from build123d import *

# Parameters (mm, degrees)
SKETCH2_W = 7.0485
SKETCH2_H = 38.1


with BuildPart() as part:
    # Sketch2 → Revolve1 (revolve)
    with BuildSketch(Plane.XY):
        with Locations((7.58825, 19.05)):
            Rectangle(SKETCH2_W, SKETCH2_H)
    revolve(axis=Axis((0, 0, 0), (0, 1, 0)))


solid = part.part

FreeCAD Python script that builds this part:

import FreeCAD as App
import Part
import Sketcher
Q = App.Units.Quantity


def add_polygon(sketch, points):
    """Adds a closed chain of lines whose ends are joined by coincident constraints."""
    first, n = sketch.GeometryCount, len(points)
    for a, b in zip(points, points[1:] + points[:1]):
        sketch.addGeometry(Part.LineSegment(App.Vector(*a, 0), App.Vector(*b, 0)), False)
    for i in range(n):
        sketch.addConstraint(Sketcher.Constraint("Coincident", first + i, 2, first + (i + 1) % n, 1))

doc = App.newDocument("Part")
params = doc.addObject("Spreadsheet::Sheet", "Params")
for row, (alias, value) in enumerate([
    ("sketch1_height", "1.5 in"),
    ("revolution_angle", "360 deg"),
], start=1):
    params.set(f"A{row}", alias)
    params.set(f"B{row}", "=" + value)
    params.setAlias(f"B{row}", alias)

body = doc.addObject("PartDesign::Body", "Body")

# Sketch on XY plane
sketch1 = doc.addObject("Sketcher::SketchObject", "Sketch")
body.addObject(sketch1)
sketch1.AttachmentSupport = (doc.XY_Plane, [""])
sketch1.MapMode = "FlatFace"
add_polygon(sketch1, [(4, 38), (4, 0), (11, 0), (11, 38)])  # lines 0-3
sketch1.addConstraint([
    Sketcher.Constraint("Vertical", 0),
    Sketcher.Constraint("Horizontal", 1),
    Sketcher.Constraint("Vertical", 2),
    Sketcher.Constraint("Horizontal", 3),
    Sketcher.Constraint("PointOnObject", 0, 2, -1),
    Sketcher.Constraint("DistanceY", 0, 2, 0, 1, Q("1.5 in")),
    Sketcher.Constraint("DistanceX", -1, 1, 0, 2, Q("0.16 in")),
    Sketcher.Constraint("DistanceX", 1, 1, 1, 2, Q("0.2775 in")),
])
sketch1.setExpression("Constraints[9]", "Params.sketch1_height")
revolution = doc.addObject("PartDesign::Revolution", "Revolution")
body.addObject(revolution)
revolution.Profile = sketch1
revolution.ReferenceAxis = (sketch1, ["V_Axis"])
revolution.setExpression("Angle", "Params.revolution_angle")

doc.recompute()
